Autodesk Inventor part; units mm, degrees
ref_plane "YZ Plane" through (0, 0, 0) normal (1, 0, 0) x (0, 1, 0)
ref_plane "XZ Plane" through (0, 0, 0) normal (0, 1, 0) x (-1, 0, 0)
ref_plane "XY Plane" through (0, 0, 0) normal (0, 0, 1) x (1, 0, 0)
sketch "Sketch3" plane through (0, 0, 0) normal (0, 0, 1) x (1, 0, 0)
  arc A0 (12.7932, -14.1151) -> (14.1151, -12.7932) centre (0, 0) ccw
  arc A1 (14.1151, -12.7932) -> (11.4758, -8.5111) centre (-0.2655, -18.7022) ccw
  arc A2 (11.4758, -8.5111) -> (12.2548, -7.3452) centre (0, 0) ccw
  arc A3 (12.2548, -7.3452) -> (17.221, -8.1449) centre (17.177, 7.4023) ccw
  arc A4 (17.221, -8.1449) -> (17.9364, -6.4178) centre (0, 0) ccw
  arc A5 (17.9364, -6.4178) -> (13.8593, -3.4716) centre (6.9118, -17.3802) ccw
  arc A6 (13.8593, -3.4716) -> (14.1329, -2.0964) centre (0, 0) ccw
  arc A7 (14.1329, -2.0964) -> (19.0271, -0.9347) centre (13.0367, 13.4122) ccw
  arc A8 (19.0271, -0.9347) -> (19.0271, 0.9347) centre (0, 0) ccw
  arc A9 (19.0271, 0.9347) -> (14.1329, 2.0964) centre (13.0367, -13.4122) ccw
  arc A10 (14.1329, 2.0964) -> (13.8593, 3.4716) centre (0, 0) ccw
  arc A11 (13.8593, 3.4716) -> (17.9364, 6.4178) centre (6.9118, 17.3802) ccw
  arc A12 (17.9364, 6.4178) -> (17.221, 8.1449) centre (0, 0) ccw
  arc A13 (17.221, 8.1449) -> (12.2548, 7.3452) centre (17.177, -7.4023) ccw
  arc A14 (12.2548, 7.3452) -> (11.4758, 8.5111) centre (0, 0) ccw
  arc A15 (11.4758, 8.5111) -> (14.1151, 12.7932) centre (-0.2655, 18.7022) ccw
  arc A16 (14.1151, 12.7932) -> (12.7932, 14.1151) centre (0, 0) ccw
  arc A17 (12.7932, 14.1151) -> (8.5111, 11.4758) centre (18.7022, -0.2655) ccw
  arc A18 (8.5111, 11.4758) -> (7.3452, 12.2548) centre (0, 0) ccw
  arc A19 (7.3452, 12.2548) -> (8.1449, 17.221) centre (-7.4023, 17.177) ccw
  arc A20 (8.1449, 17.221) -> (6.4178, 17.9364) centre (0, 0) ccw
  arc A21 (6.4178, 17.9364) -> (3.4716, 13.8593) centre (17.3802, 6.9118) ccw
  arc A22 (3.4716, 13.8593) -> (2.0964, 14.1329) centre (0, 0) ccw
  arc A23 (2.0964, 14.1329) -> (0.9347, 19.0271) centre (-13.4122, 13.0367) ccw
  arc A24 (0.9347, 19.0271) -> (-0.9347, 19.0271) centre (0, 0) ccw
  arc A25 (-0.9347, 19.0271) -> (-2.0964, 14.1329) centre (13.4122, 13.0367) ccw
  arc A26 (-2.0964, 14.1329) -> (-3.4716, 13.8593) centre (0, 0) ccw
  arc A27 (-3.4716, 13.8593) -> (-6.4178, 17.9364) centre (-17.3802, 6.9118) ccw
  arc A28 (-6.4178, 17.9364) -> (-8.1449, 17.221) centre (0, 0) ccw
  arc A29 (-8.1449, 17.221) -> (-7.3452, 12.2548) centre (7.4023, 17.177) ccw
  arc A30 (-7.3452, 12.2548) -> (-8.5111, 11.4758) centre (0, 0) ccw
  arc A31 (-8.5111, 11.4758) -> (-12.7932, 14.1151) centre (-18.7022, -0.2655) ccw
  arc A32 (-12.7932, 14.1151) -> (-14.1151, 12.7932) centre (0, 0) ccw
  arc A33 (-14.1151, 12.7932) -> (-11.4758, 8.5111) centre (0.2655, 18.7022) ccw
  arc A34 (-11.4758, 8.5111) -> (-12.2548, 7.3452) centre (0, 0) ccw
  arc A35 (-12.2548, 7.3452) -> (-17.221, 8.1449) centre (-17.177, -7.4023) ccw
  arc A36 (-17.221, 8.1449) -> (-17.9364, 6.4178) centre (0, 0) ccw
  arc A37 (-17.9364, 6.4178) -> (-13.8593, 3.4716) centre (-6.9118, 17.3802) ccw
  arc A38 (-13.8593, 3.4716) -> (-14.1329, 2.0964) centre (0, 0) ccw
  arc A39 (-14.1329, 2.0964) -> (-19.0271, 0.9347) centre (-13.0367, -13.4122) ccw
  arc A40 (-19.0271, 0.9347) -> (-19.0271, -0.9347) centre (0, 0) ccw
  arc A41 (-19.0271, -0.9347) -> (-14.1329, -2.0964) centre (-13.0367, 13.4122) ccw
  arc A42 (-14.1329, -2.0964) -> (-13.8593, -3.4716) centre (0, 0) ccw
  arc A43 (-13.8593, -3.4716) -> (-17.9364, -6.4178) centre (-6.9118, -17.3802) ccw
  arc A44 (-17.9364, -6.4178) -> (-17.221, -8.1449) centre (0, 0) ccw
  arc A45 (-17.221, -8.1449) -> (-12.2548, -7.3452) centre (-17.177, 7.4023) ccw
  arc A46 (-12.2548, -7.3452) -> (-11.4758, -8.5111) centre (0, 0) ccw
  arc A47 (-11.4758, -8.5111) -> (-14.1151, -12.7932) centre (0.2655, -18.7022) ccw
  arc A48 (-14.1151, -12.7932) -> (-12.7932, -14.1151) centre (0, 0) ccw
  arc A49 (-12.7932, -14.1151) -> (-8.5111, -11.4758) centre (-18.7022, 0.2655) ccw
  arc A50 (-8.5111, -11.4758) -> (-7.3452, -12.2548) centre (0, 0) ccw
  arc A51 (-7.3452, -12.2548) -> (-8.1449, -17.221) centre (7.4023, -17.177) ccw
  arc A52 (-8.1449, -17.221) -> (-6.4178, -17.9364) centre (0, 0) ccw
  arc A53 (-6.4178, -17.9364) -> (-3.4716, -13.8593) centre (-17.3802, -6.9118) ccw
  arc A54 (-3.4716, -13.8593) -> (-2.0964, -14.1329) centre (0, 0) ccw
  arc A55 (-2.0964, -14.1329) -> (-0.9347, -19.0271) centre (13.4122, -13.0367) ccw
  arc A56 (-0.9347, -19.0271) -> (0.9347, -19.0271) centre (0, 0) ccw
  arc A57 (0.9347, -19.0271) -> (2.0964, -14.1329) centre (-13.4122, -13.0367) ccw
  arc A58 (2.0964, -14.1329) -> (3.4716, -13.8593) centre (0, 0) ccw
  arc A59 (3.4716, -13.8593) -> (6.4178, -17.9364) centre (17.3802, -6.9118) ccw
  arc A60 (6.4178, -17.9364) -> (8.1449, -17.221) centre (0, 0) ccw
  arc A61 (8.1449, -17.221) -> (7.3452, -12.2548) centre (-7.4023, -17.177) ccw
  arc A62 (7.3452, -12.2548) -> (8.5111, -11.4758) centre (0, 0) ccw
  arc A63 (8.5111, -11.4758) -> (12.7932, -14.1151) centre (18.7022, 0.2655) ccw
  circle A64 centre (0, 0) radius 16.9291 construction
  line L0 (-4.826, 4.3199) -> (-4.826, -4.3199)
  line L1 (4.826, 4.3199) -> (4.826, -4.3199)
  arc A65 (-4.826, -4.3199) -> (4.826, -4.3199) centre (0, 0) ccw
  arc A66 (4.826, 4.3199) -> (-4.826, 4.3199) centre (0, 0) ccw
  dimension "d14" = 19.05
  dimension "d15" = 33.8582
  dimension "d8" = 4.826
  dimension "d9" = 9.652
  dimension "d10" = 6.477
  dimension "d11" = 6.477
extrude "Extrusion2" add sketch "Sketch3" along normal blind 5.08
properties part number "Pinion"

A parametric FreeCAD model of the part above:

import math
import FreeCAD as App
import Part
import Sketcher
from FreeCAD import Vector
Q = App.Units.Quantity

doc = App.newDocument("Part")
body = doc.addObject("PartDesign::Body", "Body")

# Sketch on XY plane
sketch1 = doc.addObject("Sketcher::SketchObject", "Sketch")
body.addObject(sketch1)
sketch1.AttachmentSupport = (doc.XY_Plane, [""])
sketch1.MapMode = "FlatFace"
sketch1.addGeometry(Part.ArcOfCircle(Part.Circle(Vector(18.703137, 0.266776, 0), Vector(0, 0, 1), 15.548817), math.radians(-130.956538), math.radians(-112.339208)), False)
sketch1.addGeometry(Part.ArcOfCircle(Part.Circle(Vector(0, 0, 0), Vector(0, 0, 1), 19.049987), math.radians(-47.812457), math.radians(-42.187543)), False)
sketch1.addGeometry(Part.ArcOfCircle(Part.Circle(Vector(-0.26409, -18.701482, 0), Vector(0, 0, 1), 15.545703), math.radians(22.337326), math.radians(40.958419)), False)
sketch1.addGeometry(Part.ArcOfCircle(Part.Circle(Vector(0.008579, -0.006042, 0), Vector(0, 0, 1), 14.277015), math.radians(-36.563748), math.radians(-30.934249)), False)
sketch1.addGeometry(Part.ArcOfCircle(Part.Circle(Vector(17.177, 7.4023, 0), Vector(0, 0, 1), 15.547244), math.radians(-108.457208), math.radians(-89.837848)), False)
sketch1.addGeometry(Part.ArcOfCircle(Part.Circle(Vector(-0.003636, 0.001612, 0), Vector(0, 0, 1), 19.053969), math.radians(-25.312135), math.radians(-19.688531)), False)
sketch1.addGeometry(Part.ArcOfCircle(Part.Circle(Vector(6.911091, -17.38103, 0), Vector(0, 0, 1), 15.548307), math.radians(44.83824), math.radians(63.456392)), False)
sketch1.addGeometry(Part.ArcOfCircle(Part.Circle(Vector(-0.022042, 0.00495, 0), Vector(0, 0, 1), 14.310068), math.radians(-14.060382), math.radians(-8.444084)), False)
sketch1.addGeometry(Part.ArcOfCircle(Part.Circle(Vector(13.0367, 13.4122, 0), Vector(0, 0, 1), 15.547293), math.radians(-85.956866), math.radians(-67.337528)), False)
sketch1.addGeometry(Part.ArcOfCircle(Part.Circle(Vector(0, 0, 0), Vector(0, 0, 1), 19.050045), math.radians(-2.812375), math.radians(2.812375)), False)
sketch1.addGeometry(Part.ArcOfCircle(Part.Circle(Vector(13.0367, -13.4122, 0), Vector(0, 0, 1), 15.547297), math.radians(67.337528), math.radians(85.956866)), False)
sketch1.addGeometry(Part.ArcOfCircle(Part.Circle(Vector(0.022188, 0.00385, 0), Vector(0, 0, 1), 14.265026), math.radians(8.43521), math.radians(14.069256)), False)
sketch1.addGeometry(Part.ArcOfCircle(Part.Circle(Vector(6.912365, 17.379266, 0), Vector(0, 0, 1), 15.54616), math.radians(-63.45769), math.radians(-44.836943)), False)
sketch1.addGeometry(Part.ArcOfCircle(Part.Circle(Vector(0.003709, 0.001431, 0), Vector(0, 0, 1), 19.046029), math.radians(19.687358), math.radians(25.313308)), False)
sketch1.addGeometry(Part.ArcOfCircle(Part.Circle(Vector(17.177, -7.4023, 0), Vector(0, 0, 1), 15.547262), math.radians(89.837848), math.radians(108.457208)), False)
sketch1.addGeometry(Part.ArcOfCircle(Part.Circle(Vector(-0.008878, -0.005622, 0), Vector(0, 0, 1), 14.297986), math.radians(30.938381), math.radians(36.559617)), False)
sketch1.addGeometry(Part.ArcOfCircle(Part.Circle(Vector(-0.266776, 18.703137, 0), Vector(0, 0, 1), 15.548817), math.radians(-40.956538), math.radians(-22.339208)), False)
sketch1.addGeometry(Part.ArcOfCircle(Part.Circle(Vector(0, 0, 0), Vector(0, 0, 1), 19.049987), math.radians(42.187543), math.radians(47.812457)), False)
sketch1.addGeometry(Part.ArcOfCircle(Part.Circle(Vector(18.701482, -0.26409, 0), Vector(0, 0, 1), 15.545703), math.radians(112.337326), math.radians(130.958419)), False)
sketch1.addGeometry(Part.ArcOfCircle(Part.Circle(Vector(0.006042, 0.008579, 0), Vector(0, 0, 1), 14.277015), math.radians(53.436252), math.radians(59.065751)), False)
sketch1.addGeometry(Part.ArcOfCircle(Part.Circle(Vector(-7.4023, 17.177, 0), Vector(0, 0, 1), 15.547244), math.radians(-18.457208), math.radians(0.162152)), False)
sketch1.addGeometry(Part.ArcOfCircle(Part.Circle(Vector(-0.001612, -0.003636, 0), Vector(0, 0, 1), 19.053969), math.radians(64.687865), math.radians(70.311469)), False)
sketch1.addGeometry(Part.ArcOfCircle(Part.Circle(Vector(17.38103, 6.911091, 0), Vector(0, 0, 1), 15.548307), math.radians(134.83824), math.radians(153.456392)), False)
sketch1.addGeometry(Part.ArcOfCircle(Part.Circle(Vector(-0.00495, -0.022042, 0), Vector(0, 0, 1), 14.310068), math.radians(75.939618), math.radians(81.555916)), False)
sketch1.addGeometry(Part.ArcOfCircle(Part.Circle(Vector(-13.4122, 13.0367, 0), Vector(0, 0, 1), 15.547293), math.radians(4.043134), math.radians(22.662472)), False)
sketch1.addGeometry(Part.ArcOfCircle(Part.Circle(Vector(0, 0, 0), Vector(0, 0, 1), 19.050045), math.radians(87.187625), math.radians(92.812375)), False)
sketch1.addGeometry(Part.ArcOfCircle(Part.Circle(Vector(13.4122, 13.0367, 0), Vector(0, 0, 1), 15.547297), math.radians(157.337528), math.radians(175.956866)), False)
sketch1.addGeometry(Part.ArcOfCircle(Part.Circle(Vector(-0.00385, 0.022188, 0), Vector(0, 0, 1), 14.265026), math.radians(98.43521), math.radians(104.069256)), False)
sketch1.addGeometry(Part.ArcOfCircle(Part.Circle(Vector(-17.379266, 6.912365, 0), Vector(0, 0, 1), 15.54616), math.radians(26.54231), math.radians(45.163057)), False)
sketch1.addGeometry(Part.ArcOfCircle(Part.Circle(Vector(-0.001431, 0.003709, 0), Vector(0, 0, 1), 19.046029), math.radians(109.687358), math.radians(115.313308)), False)
sketch1.addGeometry(Part.ArcOfCircle(Part.Circle(Vector(7.4023, 17.177, 0), Vector(0, 0, 1), 15.547262), math.radians(179.837848), math.radians(198.457208)), False)
sketch1.addGeometry(Part.ArcOfCircle(Part.Circle(Vector(0.005622, -0.008878, 0), Vector(0, 0, 1), 14.297986), math.radians(120.938381), math.radians(126.559617)), False)
sketch1.addGeometry(Part.ArcOfCircle(Part.Circle(Vector(-18.703137, -0.266776, 0), Vector(0, 0, 1), 15.548817), math.radians(49.043462), math.radians(67.660792)), False)
sketch1.addGeometry(Part.ArcOfCircle(Part.Circle(Vector(0, 0, 0), Vector(0, 0, 1), 19.049987), math.radians(132.187543), math.radians(137.812457)), False)
sketch1.addGeometry(Part.ArcOfCircle(Part.Circle(Vector(0.26409, 18.701482, 0), Vector(0, 0, 1), 15.545703), math.radians(-157.662674), math.radians(-139.041581)), False)
sketch1.addGeometry(Part.ArcOfCircle(Part.Circle(Vector(-0.008579, 0.006042, 0), Vector(0, 0, 1), 14.277015), math.radians(143.436252), math.radians(149.065751)), False)
sketch1.addGeometry(Part.ArcOfCircle(Part.Circle(Vector(-17.177, -7.4023, 0), Vector(0, 0, 1), 15.547244), math.radians(71.542792), math.radians(90.162152)), False)
sketch1.addGeometry(Part.ArcOfCircle(Part.Circle(Vector(0.003636, -0.001612, 0), Vector(0, 0, 1), 19.053969), math.radians(154.687865), math.radians(160.311469)), False)
sketch1.addGeometry(Part.ArcOfCircle(Part.Circle(Vector(-6.911091, 17.38103, 0), Vector(0, 0, 1), 15.548307), math.radians(-135.16176), math.radians(-116.543608)), False)
sketch1.addGeometry(Part.ArcOfCircle(Part.Circle(Vector(0.022042, -0.00495, 0), Vector(0, 0, 1), 14.310068), math.radians(165.939618), math.radians(171.555916)), False)
sketch1.addGeometry(Part.ArcOfCircle(Part.Circle(Vector(-13.0367, -13.4122, 0), Vector(0, 0, 1), 15.547293), math.radians(94.043134), math.radians(112.662472)), False)
sketch1.addGeometry(Part.ArcOfCircle(Part.Circle(Vector(0, 0, 0), Vector(0, 0, 1), 19.050045), math.radians(177.187625), math.radians(182.812375)), False)
sketch1.addGeometry(Part.ArcOfCircle(Part.Circle(Vector(-13.0367, 13.4122, 0), Vector(0, 0, 1), 15.547297), math.radians(-112.662472), math.radians(-94.043134)), False)
sketch1.addGeometry(Part.ArcOfCircle(Part.Circle(Vector(-0.022188, -0.00385, 0), Vector(0, 0, 1), 14.265026), math.radians(-171.56479), math.radians(-165.930744)), False)
sketch1.addGeometry(Part.ArcOfCircle(Part.Circle(Vector(-6.912365, -17.379266, 0), Vector(0, 0, 1), 15.54616), math.radians(116.54231), math.radians(135.163057)), False)
sketch1.addGeometry(Part.ArcOfCircle(Part.Circle(Vector(-0.003709, -0.001431, 0), Vector(0, 0, 1), 19.046029), math.radians(-160.312642), math.radians(-154.686692)), False)
sketch1.addGeometry(Part.ArcOfCircle(Part.Circle(Vector(-17.177, 7.4023, 0), Vector(0, 0, 1), 15.547262), math.radians(-90.162152), math.radians(-71.542792)), False)
sketch1.addGeometry(Part.ArcOfCircle(Part.Circle(Vector(0.008878, 0.005622, 0), Vector(0, 0, 1), 14.297986), math.radians(-149.061619), math.radians(-143.440383)), False)
sketch1.addGeometry(Part.ArcOfCircle(Part.Circle(Vector(0.266776, -18.703137, 0), Vector(0, 0, 1), 15.548817), math.radians(139.043462), math.radians(157.660792)), False)
sketch1.addGeometry(Part.ArcOfCircle(Part.Circle(Vector(0, 0, 0), Vector(0, 0, 1), 19.049987), math.radians(-137.812457), math.radians(-132.187543)), False)
sketch1.addGeometry(Part.ArcOfCircle(Part.Circle(Vector(-18.701482, 0.26409, 0), Vector(0, 0, 1), 15.545703), math.radians(-67.662674), math.radians(-49.041581)), False)
sketch1.addGeometry(Part.ArcOfCircle(Part.Circle(Vector(-0.006042, -0.008579, 0), Vector(0, 0, 1), 14.277015), math.radians(-126.563748), math.radians(-120.934249)), False)
sketch1.addGeometry(Part.ArcOfCircle(Part.Circle(Vector(7.4023, -17.177, 0), Vector(0, 0, 1), 15.547244), math.radians(161.542792), math.radians(180.162152)), False)
sketch1.addGeometry(Part.ArcOfCircle(Part.Circle(Vector(0.001612, 0.003636, 0), Vector(0, 0, 1), 19.053969), math.radians(-115.312135), math.radians(-109.688531)), False)
sketch1.addGeometry(Part.ArcOfCircle(Part.Circle(Vector(-17.38103, -6.911091, 0), Vector(0, 0, 1), 15.548307), math.radians(-45.16176), math.radians(-26.543608)), False)
sketch1.addGeometry(Part.ArcOfCircle(Part.Circle(Vector(0.00495, 0.022042, 0), Vector(0, 0, 1), 14.310068), math.radians(-104.060382), math.radians(-98.444084)), False)
sketch1.addGeometry(Part.ArcOfCircle(Part.Circle(Vector(13.4122, -13.0367, 0), Vector(0, 0, 1), 15.547293), math.radians(-175.956866), math.radians(-157.337528)), False)
sketch1.addGeometry(Part.ArcOfCircle(Part.Circle(Vector(0, 0, 0), Vector(0, 0, 1), 19.050045), math.radians(-92.812375), math.radians(-87.187625)), False)
sketch1.addGeometry(Part.ArcOfCircle(Part.Circle(Vector(-13.4122, -13.0367, 0), Vector(0, 0, 1), 15.547297), math.radians(-22.662472), math.radians(-4.043134)), False)
sketch1.addGeometry(Part.ArcOfCircle(Part.Circle(Vector(0.00385, -0.022188, 0), Vector(0, 0, 1), 14.265026), math.radians(-81.56479), math.radians(-75.930744)), False)
sketch1.addGeometry(Part.ArcOfCircle(Part.Circle(Vector(17.379266, -6.912365, 0), Vector(0, 0, 1), 15.54616), math.radians(-153.45769), math.radians(-134.836943)), False)
sketch1.addGeometry(Part.ArcOfCircle(Part.Circle(Vector(0.001431, -0.003709, 0), Vector(0, 0, 1), 19.046029), math.radians(-70.312642), math.radians(-64.686692)), False)
sketch1.addGeometry(Part.ArcOfCircle(Part.Circle(Vector(-7.4023, -17.177, 0), Vector(0, 0, 1), 15.547262), math.radians(-0.162152), math.radians(18.457208)), False)
sketch1.addGeometry(Part.ArcOfCircle(Part.Circle(Vector(-0.005622, 0.008878, 0), Vector(0, 0, 1), 14.297986), math.radians(-59.061619), math.radians(-53.440383)), False)
sketch1.addGeometry(Part.LineSegment(Vector(-4.826, -4.3199, 0), Vector(-4.826, 4.3199, 0)), False)
sketch1.addGeometry(Part.ArcOfCircle(Part.Circle(Vector(0, 0, 0), Vector(0, 0, 1), 6.477022), math.radians(41.832695), math.radians(138.167305)), False)
sketch1.addGeometry(Part.LineSegment(Vector(4.826, 4.3199, 0), Vector(4.826, -4.3199, 0)), False)
sketch1.addGeometry(Part.ArcOfCircle(Part.Circle(Vector(0, 0, 0), Vector(0, 0, 1), 6.477022), math.radians(-138.167305), math.radians(-41.832695)), False)
sketch1.addConstraint(Sketcher.Constraint("Coincident", 0, 2, 1, 1))
sketch1.addConstraint(Sketcher.Constraint("Coincident", 1, 2, 2, 1))
sketch1.addConstraint(Sketcher.Constraint("Coincident", 2, 2, 3, 1))
sketch1.addConstraint(Sketcher.Constraint("Coincident", 3, 2, 4, 1))
sketch1.addConstraint(Sketcher.Constraint("Coincident", 4, 2, 5, 1))
sketch1.addConstraint(Sketcher.Constraint("Coincident", 5, 2, 6, 1))
sketch1.addConstraint(Sketcher.Constraint("Coincident", 6, 2, 7, 1))
sketch1.addConstraint(Sketcher.Constraint("Coincident", 7, 2, 8, 1))
sketch1.addConstraint(Sketcher.Constraint("Coincident", 8, 2, 9, 1))
sketch1.addConstraint(Sketcher.Constraint("Coincident", 9, 2, 10, 1))
sketch1.addConstraint(Sketcher.Constraint("Coincident", 10, 2, 11, 1))
sketch1.addConstraint(Sketcher.Constraint("Coincident", 11, 2, 12, 1))
sketch1.addConstraint(Sketcher.Constraint("Coincident", 12, 2, 13, 1))
sketch1.addConstraint(Sketcher.Constraint("Coincident", 13, 2, 14, 1))
sketch1.addConstraint(Sketcher.Constraint("Coincident", 14, 2, 15, 1))
sketch1.addConstraint(Sketcher.Constraint("Coincident", 15, 2, 16, 1))
sketch1.addConstraint(Sketcher.Constraint("Coincident", 16, 2, 17, 1))
sketch1.addConstraint(Sketcher.Constraint("Coincident", 17, 2, 18, 1))
sketch1.addConstraint(Sketcher.Constraint("Coincident", 18, 2, 19, 1))
sketch1.addConstraint(Sketcher.Constraint("Coincident", 19, 2, 20, 1))
sketch1.addConstraint(Sketcher.Constraint("Coincident", 20, 2, 21, 1))
sketch1.addConstraint(Sketcher.Constraint("Coincident", 21, 2, 22, 1))
sketch1.addConstraint(Sketcher.Constraint("Coincident", 22, 2, 23, 1))
sketch1.addConstraint(Sketcher.Constraint("Coincident", 23, 2, 24, 1))
sketch1.addConstraint(Sketcher.Constraint("Coincident", 24, 2, 25, 1))
sketch1.addConstraint(Sketcher.Constraint("Coincident", 25, 2, 26, 1))
sketch1.addConstraint(Sketcher.Constraint("Coincident", 26, 2, 27, 1))
sketch1.addConstraint(Sketcher.Constraint("Coincident", 27, 2, 28, 1))
sketch1.addConstraint(Sketcher.Constraint("Coincident", 28, 2, 29, 1))
sketch1.addConstraint(Sketcher.Constraint("Coincident", 29, 2, 30, 1))
sketch1.addConstraint(Sketcher.Constraint("Coincident", 30, 2, 31, 1))
sketch1.addConstraint(Sketcher.Constraint("Coincident", 31, 2, 32, 1))
sketch1.addConstraint(Sketcher.Constraint("Coincident", 32, 2, 33, 1))
sketch1.addConstraint(Sketcher.Constraint("Coincident", 33, 2, 34, 1))
sketch1.addConstraint(Sketcher.Constraint("Coincident", 34, 2, 35, 1))
sketch1.addConstraint(Sketcher.Constraint("Coincident", 35, 2, 36, 1))
sketch1.addConstraint(Sketcher.Constraint("Coincident", 36, 2, 37, 1))
sketch1.addConstraint(Sketcher.Constraint("Coincident", 37, 2, 38, 1))
sketch1.addConstraint(Sketcher.Constraint("Coincident", 38, 2, 39, 1))
sketch1.addConstraint(Sketcher.Constraint("Coincident", 39, 2, 40, 1))
sketch1.addConstraint(Sketcher.Constraint("Coincident", 40, 2, 41, 1))
sketch1.addConstraint(Sketcher.Constraint("Coincident", 41, 2, 42, 1))
sketch1.addConstraint(Sketcher.Constraint("Coincident", 42, 2, 43, 1))
sketch1.addConstraint(Sketcher.Constraint("Coincident", 43, 2, 44, 1))
sketch1.addConstraint(Sketcher.Constraint("Coincident", 44, 2, 45, 1))
sketch1.addConstraint(Sketcher.Constraint("Coincident", 45, 2, 46, 1))
sketch1.addConstraint(Sketcher.Constraint("Coincident", 46, 2, 47, 1))
sketch1.addConstraint(Sketcher.Constraint("Coincident", 47, 2, 48, 1))
sketch1.addConstraint(Sketcher.Constraint("Coincident", 48, 2, 49, 1))
sketch1.addConstraint(Sketcher.Constraint("Coincident", 49, 2, 50, 1))
sketch1.addConstraint(Sketcher.Constraint("Coincident", 50, 2, 51, 1))
sketch1.addConstraint(Sketcher.Constraint("Coincident", 51, 2, 52, 1))
sketch1.addConstraint(Sketcher.Constraint("Coincident", 52, 2, 53, 1))
sketch1.addConstraint(Sketcher.Constraint("Coincident", 53, 2, 54, 1))
sketch1.addConstraint(Sketcher.Constraint("Coincident", 54, 2, 55, 1))
sketch1.addConstraint(Sketcher.Constraint("Coincident", 55, 2, 56, 1))
sketch1.addConstraint(Sketcher.Constraint("Coincident", 56, 2, 57, 1))
sketch1.addConstraint(Sketcher.Constraint("Coincident", 57, 2, 58, 1))
sketch1.addConstraint(Sketcher.Constraint("Coincident", 58, 2, 59, 1))
sketch1.addConstraint(Sketcher.Constraint("Coincident", 59, 2, 60, 1))
sketch1.addConstraint(Sketcher.Constraint("Coincident", 60, 2, 61, 1))
sketch1.addConstraint(Sketcher.Constraint("Coincident", 61, 2, 62, 1))
sketch1.addConstraint(Sketcher.Constraint("Coincident", 62, 2, 63, 1))
sketch1.addConstraint(Sketcher.Constraint("Coincident", 63, 2, 0, 1))
sketch1.addConstraint(Sketcher.Constraint("Coincident", 64, 2, 65, 2))
sketch1.addConstraint(Sketcher.Constraint("Coincident", 65, 1, 66, 1))
sketch1.addConstraint(Sketcher.Constraint("Coincident", 66, 2, 67, 2))
sketch1.addConstraint(Sketcher.Constraint("Coincident", 67, 1, 64, 1))
sketch1.addConstraint(Sketcher.Constraint("Vertical", 64))
sketch1.addConstraint(Sketcher.Constraint("Vertical", 66))
sketch1.addConstraint(Sketcher.Constraint("Coincident", 1, 3, -1, 1))
sketch1.addConstraint(Sketcher.Constraint("Coincident", 9, 3, -1, 1))
sketch1.addConstraint(Sketcher.Constraint("Coincident", 17, 3, -1, 1))
sketch1.addConstraint(Sketcher.Constraint("Coincident", 25, 3, -1, 1))
sketch1.addConstraint(Sketcher.Constraint("Coincident", 33, 3, -1, 1))
sketch1.addConstraint(Sketcher.Constraint("Coincident", 41, 3, -1, 1))
sketch1.addConstraint(Sketcher.Constraint("Coincident", 49, 3, -1, 1))
sketch1.addConstraint(Sketcher.Constraint("Coincident", 57, 3, -1, 1))
sketch1.addConstraint(Sketcher.Constraint("Coincident", 65, 3, -1, 1))
sketch1.addConstraint(Sketcher.Constraint("Coincident", 67, 3, -1, 1))
sketch1.addConstraint(Sketcher.Constraint("Equal", 4, 8))
sketch1.addConstraint(Sketcher.Constraint("Equal", 1, 9))
sketch1.addConstraint(Sketcher.Constraint("Equal", 8, 10))
sketch1.addConstraint(Sketcher.Constraint("Equal", 10, 14))
sketch1.addConstraint(Sketcher.Constraint("Equal", 0, 16))
sketch1.addConstraint(Sketcher.Constraint("Equal", 9, 17))
sketch1.addConstraint(Sketcher.Constraint("Equal", 2, 18))
sketch1.addConstraint(Sketcher.Constraint("Equal", 3, 19))
sketch1.addConstraint(Sketcher.Constraint("Equal", 14, 20))
sketch1.addConstraint(Sketcher.Constraint("Equal", 5, 21))
sketch1.addConstraint(Sketcher.Constraint("Equal", 6, 22))
sketch1.addConstraint(Sketcher.Constraint("Equal", 7, 23))
sketch1.addConstraint(Sketcher.Constraint("Equal", 20, 24))
sketch1.addConstraint(Sketcher.Constraint("Equal", 17, 25))
sketch1.addConstraint(Sketcher.Constraint("Equal", 24, 26))
sketch1.addConstraint(Sketcher.Constraint("Equal", 11, 27))
sketch1.addConstraint(Sketcher.Constraint("Equal", 12, 28))
sketch1.addConstraint(Sketcher.Constraint("Equal", 13, 29))
sketch1.addConstraint(Sketcher.Constraint("Equal", 26, 30))
sketch1.addConstraint(Sketcher.Constraint("Equal", 15, 31))
sketch1.addConstraint(Sketcher.Constraint("Equal", 16, 32))
sketch1.addConstraint(Sketcher.Constraint("Equal", 25, 33))
sketch1.addConstraint(Sketcher.Constraint("Equal", 18, 34))
sketch1.addConstraint(Sketcher.Constraint("Equal", 19, 35))
sketch1.addConstraint(Sketcher.Constraint("Equal", 30, 36))
sketch1.addConstraint(Sketcher.Constraint("Equal", 21, 37))
sketch1.addConstraint(Sketcher.Constraint("Equal", 22, 38))
sketch1.addConstraint(Sketcher.Constraint("Equal", 23, 39))
sketch1.addConstraint(Sketcher.Constraint("Equal", 36, 40))
sketch1.addConstraint(Sketcher.Constraint("Equal", 33, 41))
sketch1.addConstraint(Sketcher.Constraint("Equal", 40, 42))
sketch1.addConstraint(Sketcher.Constraint("Equal", 27, 43))
sketch1.addConstraint(Sketcher.Constraint("Equal", 28, 44))
sketch1.addConstraint(Sketcher.Constraint("Equal", 29, 45))
sketch1.addConstraint(Sketcher.Constraint("Equal", 42, 46))
sketch1.addConstraint(Sketcher.Constraint("Equal", 31, 47))
sketch1.addConstraint(Sketcher.Constraint("Equal", 32, 48))
sketch1.addConstraint(Sketcher.Constraint("Equal", 41, 49))
sketch1.addConstraint(Sketcher.Constraint("Equal", 34, 50))
sketch1.addConstraint(Sketcher.Constraint("Equal", 35, 51))
sketch1.addConstraint(Sketcher.Constraint("Equal", 46, 52))
sketch1.addConstraint(Sketcher.Constraint("Equal", 37, 53))
sketch1.addConstraint(Sketcher.Constraint("Equal", 38, 54))
sketch1.addConstraint(Sketcher.Constraint("Equal", 39, 55))
sketch1.addConstraint(Sketcher.Constraint("Equal", 52, 56))
sketch1.addConstraint(Sketcher.Constraint("Equal", 49, 57))
sketch1.addConstraint(Sketcher.Constraint("Equal", 56, 58))
sketch1.addConstraint(Sketcher.Constraint("Equal", 43, 59))
sketch1.addConstraint(Sketcher.Constraint("Equal", 44, 60))
sketch1.addConstraint(Sketcher.Constraint("Equal", 45, 61))
sketch1.addConstraint(Sketcher.Constraint("Equal", 58, 62))
sketch1.addConstraint(Sketcher.Constraint("Equal", 47, 63))
sketch1.addConstraint(Sketcher.Constraint("Equal", 65, 67))
sketch1.addConstraint(Sketcher.Constraint("Symmetric", 0, 3, 32, 3, -1, 1))
sketch1.addConstraint(Sketcher.Constraint("Symmetric", 2, 3, 34, 3, -1, 1))
sketch1.addConstraint(Sketcher.Constraint("Symmetric", 3, 3, 35, 3, -1, 1))
sketch1.addConstraint(Sketcher.Constraint("Symmetric", 4, 3, 36, 3, -1, 1))
sketch1.addConstraint(Sketcher.Constraint("Symmetric", 5, 3, 37, 3, -1, 1))
sketch1.addConstraint(Sketcher.Constraint("Symmetric", 6, 3, 38, 3, -1, 1))
sketch1.addConstraint(Sketcher.Constraint("Symmetric", 7, 3, 39, 3, -1, 1))
sketch1.addConstraint(Sketcher.Constraint("Symmetric", 8, 3, 40, 3, -1, 1))
sketch1.addConstraint(Sketcher.Constraint("Symmetric", 10, 3, 42, 3, -1, 1))
sketch1.addConstraint(Sketcher.Constraint("Symmetric", 11, 3, 43, 3, -1, 1))
sketch1.addConstraint(Sketcher.Constraint("Symmetric", 12, 3, 44, 3, -1, 1))
sketch1.addConstraint(Sketcher.Constraint("Symmetric", 13, 3, 45, 3, -1, 1))
sketch1.addConstraint(Sketcher.Constraint("Symmetric", 14, 3, 46, 3, -1, 1))
sketch1.addConstraint(Sketcher.Constraint("Symmetric", 15, 3, 47, 3, -1, 1))
sketch1.addConstraint(Sketcher.Constraint("Symmetric", 16, 3, 48, 3, -1, 1))
sketch1.addConstraint(Sketcher.Constraint("Symmetric", 18, 3, 50, 3, -1, 1))
sketch1.addConstraint(Sketcher.Constraint("Symmetric", 19, 3, 51, 3, -1, 1))
sketch1.addConstraint(Sketcher.Constraint("Symmetric", 20, 3, 52, 3, -1, 1))
sketch1.addConstraint(Sketcher.Constraint("Symmetric", 21, 3, 53, 3, -1, 1))
sketch1.addConstraint(Sketcher.Constraint("Symmetric", 22, 3, 54, 3, -1, 1))
sketch1.addConstraint(Sketcher.Constraint("Symmetric", 23, 3, 55, 3, -1, 1))
sketch1.addConstraint(Sketcher.Constraint("Symmetric", 24, 3, 56, 3, -1, 1))
sketch1.addConstraint(Sketcher.Constraint("Symmetric", 26, 3, 58, 3, -1, 1))
sketch1.addConstraint(Sketcher.Constraint("Symmetric", 27, 3, 59, 3, -1, 1))
sketch1.addConstraint(Sketcher.Constraint("Symmetric", 28, 3, 60, 3, -1, 1))
sketch1.addConstraint(Sketcher.Constraint("Symmetric", 29, 3, 61, 3, -1, 1))
sketch1.addConstraint(Sketcher.Constraint("Symmetric", 30, 3, 62, 3, -1, 1))
sketch1.addConstraint(Sketcher.Constraint("Symmetric", 31, 3, 63, 3, -1, 1))
sketch1.addConstraint(Sketcher.Constraint("Symmetric", 5, 3, 13, 3, -2))
sketch1.addConstraint(Sketcher.Constraint("Symmetric", 24, 3, 26, 3, -2))
sketch1.addConstraint(Sketcher.Constraint("Symmetric", 20, 3, 30, 3, -2))
sketch1.addConstraint(Sketcher.Constraint("Symmetric", 14, 3, 36, 3, -2))
sketch1.addConstraint(Sketcher.Constraint("Symmetric", 10, 3, 40, 3, -2))
sketch1.addConstraint(Sketcher.Constraint("Symmetric", 29, 3, 53, 3, -2))
sketch1.addConstraint(Sketcher.Constraint("Symmetric", 22, 2, 27, 2, -2))
sketch1.addConstraint(Sketcher.Constraint("Symmetric", 21, 2, 28, 2, -2))
sketch1.addConstraint(Sketcher.Constraint("Symmetric", 18, 2, 31, 2, -2))
sketch1.addConstraint(Sketcher.Constraint("Symmetric", 15, 2, 34, 2, -2))
sketch1.addConstraint(Sketcher.Constraint("Symmetric", 12, 2, 37, 2, -2))
sketch1.addConstraint(Sketcher.Constraint("Symmetric", 11, 2, 38, 2, -2))
sketch1.addConstraint(Sketcher.Constraint("Horizontal", 11, 3, 29, 3))
sketch1.addConstraint(Sketcher.Constraint("Horizontal", 27, 3, 55, 3))
sketch1.addConstraint(Sketcher.Constraint("Horizontal", 23, 2, 26, 2))
sketch1.addConstraint(Sketcher.Constraint("Horizontal", 20, 2, 29, 2))
sketch1.addConstraint(Sketcher.Constraint("Horizontal", 19, 2, 30, 2))
sketch1.addConstraint(Sketcher.Constraint("Horizontal", 17, 2, 32, 2))
sketch1.addConstraint(Sketcher.Constraint("Horizontal", 16, 2, 33, 2))
sketch1.addConstraint(Sketcher.Constraint("Horizontal", 14, 2, 35, 2))
sketch1.addConstraint(Sketcher.Constraint("Horizontal", 64, 2, 65, 1))
sketch1.addConstraint(Sketcher.Constraint("Vertical", 11, 3, 39, 3))
sketch1.addConstraint(Sketcher.Constraint("Vertical", 27, 3, 45, 3))
sketch1.addConstraint(Sketcher.Constraint("Vertical", 7, 2, 10, 2))
sketch1.addConstraint(Sketcher.Constraint("Vertical", 4, 2, 13, 2))
sketch1.addConstraint(Sketcher.Constraint("Radius", 1, Q("0.75 in")))
sketch1.addConstraint(Sketcher.Constraint("Radius", 65, Q("0.255 in")))
sketch1.addConstraint(Sketcher.Constraint("DistanceX", 64, 2, -1, 1, Q("0.19 in")))
sketch1.addConstraint(Sketcher.Constraint("Radius", 4, Q("0.6121 in")))
sketch1.addConstraint(Sketcher.Constraint("Radius", 7, Q("0.5634 in")))
sketch1.addConstraint(Sketcher.Constraint("Radius", 0, 15.5488))
sketch1.addConstraint(Sketcher.Constraint("Radius", 2, 15.5457))
sketch1.addConstraint(Sketcher.Constraint("Radius", 3, 14.277))
sketch1.addConstraint(Sketcher.Constraint("Radius", 5, 19.054))
sketch1.addConstraint(Sketcher.Constraint("Radius", 6, 15.5483))
sketch1.addConstraint(Sketcher.Constraint("Radius", 11, 14.265))
sketch1.addConstraint(Sketcher.Constraint("Radius", 12, 15.5462))
sketch1.addConstraint(Sketcher.Constraint("Radius", 13, 19.046))
sketch1.addConstraint(Sketcher.Constraint("Radius", 15, 14.298))
sketch1.addConstraint(Sketcher.Constraint("DistanceX", -1, 1, 4, 2, Q("0.678 in")))
sketch1.addConstraint(Sketcher.Constraint("DistanceY", -1, 1, 20, 2, Q("0.678 in")))
sketch1.addConstraint(Sketcher.Constraint("DistanceY", -1, 1, 0, 3, Q("0.0105 in")))
sketch1.addConstraint(Sketcher.Constraint("DistanceX", 2, 3, -1, 1, Q("0.0104 in")))
sketch1.addConstraint(Sketcher.Constraint("DistanceX", -1, 1, 6, 3, Q("0.2721 in")))
sketch1.addConstraint(Sketcher.Constraint("DistanceY", 6, 3, -1, 1, Q("0.6843 in")))
sketch1.addConstraint(Sketcher.Constraint("DistanceX", -1, 1, 22, 3, Q("0.6843 in")))
sketch1.addConstraint(Sketcher.Constraint("DistanceY", -1, 1, 22, 3, Q("0.2721 in")))
sketch1.addConstraint(Sketcher.Constraint("DistanceX", -1, 1, 2, 2, Q("0.4518 in")))
sketch1.addConstraint(Sketcher.Constraint("DistanceY", 8, 2, -1, 1, Q("0.0368 in")))
sketch1.addConstraint(Sketcher.Constraint("DistanceY", -1, 1, 18, 2, Q("0.4518 in")))
sketch1.addConstraint(Sketcher.Constraint("DistanceX", -1, 1, 24, 2, Q("0.0368 in")))
sketch1.addConstraint(Sketcher.Constraint("DistanceX", -1, 1, 0, 3, 18.7031))
sketch1.addConstraint(Sketcher.Constraint("DistanceY", 2, 3, -1, 1, 18.7015))
sketch1.addConstraint(Sketcher.Constraint("DistanceX", -1, 1, 3, 3, 0.0086))
sketch1.addConstraint(Sketcher.Constraint("DistanceX", -1, 1, 4, 3, 17.177))
sketch1.addConstraint(Sketcher.Constraint("DistanceX", -1, 1, 8, 3, 13.0367))
sketch1.addConstraint(Sketcher.Constraint("DistanceX", -1, 1, 19, 3, 0.006))
sketch1.addConstraint(Sketcher.Constraint("DistanceY", -1, 1, 20, 3, 17.177))
sketch1.addConstraint(Sketcher.Constraint("DistanceX", 24, 3, -1, 1, 13.4122))
pad1 = doc.addObject("PartDesign::Pad", "Pad")
body.addObject(pad1)
pad1.Profile = sketch1
pad1.Length = Q("0.2 in")

doc.recompute()
